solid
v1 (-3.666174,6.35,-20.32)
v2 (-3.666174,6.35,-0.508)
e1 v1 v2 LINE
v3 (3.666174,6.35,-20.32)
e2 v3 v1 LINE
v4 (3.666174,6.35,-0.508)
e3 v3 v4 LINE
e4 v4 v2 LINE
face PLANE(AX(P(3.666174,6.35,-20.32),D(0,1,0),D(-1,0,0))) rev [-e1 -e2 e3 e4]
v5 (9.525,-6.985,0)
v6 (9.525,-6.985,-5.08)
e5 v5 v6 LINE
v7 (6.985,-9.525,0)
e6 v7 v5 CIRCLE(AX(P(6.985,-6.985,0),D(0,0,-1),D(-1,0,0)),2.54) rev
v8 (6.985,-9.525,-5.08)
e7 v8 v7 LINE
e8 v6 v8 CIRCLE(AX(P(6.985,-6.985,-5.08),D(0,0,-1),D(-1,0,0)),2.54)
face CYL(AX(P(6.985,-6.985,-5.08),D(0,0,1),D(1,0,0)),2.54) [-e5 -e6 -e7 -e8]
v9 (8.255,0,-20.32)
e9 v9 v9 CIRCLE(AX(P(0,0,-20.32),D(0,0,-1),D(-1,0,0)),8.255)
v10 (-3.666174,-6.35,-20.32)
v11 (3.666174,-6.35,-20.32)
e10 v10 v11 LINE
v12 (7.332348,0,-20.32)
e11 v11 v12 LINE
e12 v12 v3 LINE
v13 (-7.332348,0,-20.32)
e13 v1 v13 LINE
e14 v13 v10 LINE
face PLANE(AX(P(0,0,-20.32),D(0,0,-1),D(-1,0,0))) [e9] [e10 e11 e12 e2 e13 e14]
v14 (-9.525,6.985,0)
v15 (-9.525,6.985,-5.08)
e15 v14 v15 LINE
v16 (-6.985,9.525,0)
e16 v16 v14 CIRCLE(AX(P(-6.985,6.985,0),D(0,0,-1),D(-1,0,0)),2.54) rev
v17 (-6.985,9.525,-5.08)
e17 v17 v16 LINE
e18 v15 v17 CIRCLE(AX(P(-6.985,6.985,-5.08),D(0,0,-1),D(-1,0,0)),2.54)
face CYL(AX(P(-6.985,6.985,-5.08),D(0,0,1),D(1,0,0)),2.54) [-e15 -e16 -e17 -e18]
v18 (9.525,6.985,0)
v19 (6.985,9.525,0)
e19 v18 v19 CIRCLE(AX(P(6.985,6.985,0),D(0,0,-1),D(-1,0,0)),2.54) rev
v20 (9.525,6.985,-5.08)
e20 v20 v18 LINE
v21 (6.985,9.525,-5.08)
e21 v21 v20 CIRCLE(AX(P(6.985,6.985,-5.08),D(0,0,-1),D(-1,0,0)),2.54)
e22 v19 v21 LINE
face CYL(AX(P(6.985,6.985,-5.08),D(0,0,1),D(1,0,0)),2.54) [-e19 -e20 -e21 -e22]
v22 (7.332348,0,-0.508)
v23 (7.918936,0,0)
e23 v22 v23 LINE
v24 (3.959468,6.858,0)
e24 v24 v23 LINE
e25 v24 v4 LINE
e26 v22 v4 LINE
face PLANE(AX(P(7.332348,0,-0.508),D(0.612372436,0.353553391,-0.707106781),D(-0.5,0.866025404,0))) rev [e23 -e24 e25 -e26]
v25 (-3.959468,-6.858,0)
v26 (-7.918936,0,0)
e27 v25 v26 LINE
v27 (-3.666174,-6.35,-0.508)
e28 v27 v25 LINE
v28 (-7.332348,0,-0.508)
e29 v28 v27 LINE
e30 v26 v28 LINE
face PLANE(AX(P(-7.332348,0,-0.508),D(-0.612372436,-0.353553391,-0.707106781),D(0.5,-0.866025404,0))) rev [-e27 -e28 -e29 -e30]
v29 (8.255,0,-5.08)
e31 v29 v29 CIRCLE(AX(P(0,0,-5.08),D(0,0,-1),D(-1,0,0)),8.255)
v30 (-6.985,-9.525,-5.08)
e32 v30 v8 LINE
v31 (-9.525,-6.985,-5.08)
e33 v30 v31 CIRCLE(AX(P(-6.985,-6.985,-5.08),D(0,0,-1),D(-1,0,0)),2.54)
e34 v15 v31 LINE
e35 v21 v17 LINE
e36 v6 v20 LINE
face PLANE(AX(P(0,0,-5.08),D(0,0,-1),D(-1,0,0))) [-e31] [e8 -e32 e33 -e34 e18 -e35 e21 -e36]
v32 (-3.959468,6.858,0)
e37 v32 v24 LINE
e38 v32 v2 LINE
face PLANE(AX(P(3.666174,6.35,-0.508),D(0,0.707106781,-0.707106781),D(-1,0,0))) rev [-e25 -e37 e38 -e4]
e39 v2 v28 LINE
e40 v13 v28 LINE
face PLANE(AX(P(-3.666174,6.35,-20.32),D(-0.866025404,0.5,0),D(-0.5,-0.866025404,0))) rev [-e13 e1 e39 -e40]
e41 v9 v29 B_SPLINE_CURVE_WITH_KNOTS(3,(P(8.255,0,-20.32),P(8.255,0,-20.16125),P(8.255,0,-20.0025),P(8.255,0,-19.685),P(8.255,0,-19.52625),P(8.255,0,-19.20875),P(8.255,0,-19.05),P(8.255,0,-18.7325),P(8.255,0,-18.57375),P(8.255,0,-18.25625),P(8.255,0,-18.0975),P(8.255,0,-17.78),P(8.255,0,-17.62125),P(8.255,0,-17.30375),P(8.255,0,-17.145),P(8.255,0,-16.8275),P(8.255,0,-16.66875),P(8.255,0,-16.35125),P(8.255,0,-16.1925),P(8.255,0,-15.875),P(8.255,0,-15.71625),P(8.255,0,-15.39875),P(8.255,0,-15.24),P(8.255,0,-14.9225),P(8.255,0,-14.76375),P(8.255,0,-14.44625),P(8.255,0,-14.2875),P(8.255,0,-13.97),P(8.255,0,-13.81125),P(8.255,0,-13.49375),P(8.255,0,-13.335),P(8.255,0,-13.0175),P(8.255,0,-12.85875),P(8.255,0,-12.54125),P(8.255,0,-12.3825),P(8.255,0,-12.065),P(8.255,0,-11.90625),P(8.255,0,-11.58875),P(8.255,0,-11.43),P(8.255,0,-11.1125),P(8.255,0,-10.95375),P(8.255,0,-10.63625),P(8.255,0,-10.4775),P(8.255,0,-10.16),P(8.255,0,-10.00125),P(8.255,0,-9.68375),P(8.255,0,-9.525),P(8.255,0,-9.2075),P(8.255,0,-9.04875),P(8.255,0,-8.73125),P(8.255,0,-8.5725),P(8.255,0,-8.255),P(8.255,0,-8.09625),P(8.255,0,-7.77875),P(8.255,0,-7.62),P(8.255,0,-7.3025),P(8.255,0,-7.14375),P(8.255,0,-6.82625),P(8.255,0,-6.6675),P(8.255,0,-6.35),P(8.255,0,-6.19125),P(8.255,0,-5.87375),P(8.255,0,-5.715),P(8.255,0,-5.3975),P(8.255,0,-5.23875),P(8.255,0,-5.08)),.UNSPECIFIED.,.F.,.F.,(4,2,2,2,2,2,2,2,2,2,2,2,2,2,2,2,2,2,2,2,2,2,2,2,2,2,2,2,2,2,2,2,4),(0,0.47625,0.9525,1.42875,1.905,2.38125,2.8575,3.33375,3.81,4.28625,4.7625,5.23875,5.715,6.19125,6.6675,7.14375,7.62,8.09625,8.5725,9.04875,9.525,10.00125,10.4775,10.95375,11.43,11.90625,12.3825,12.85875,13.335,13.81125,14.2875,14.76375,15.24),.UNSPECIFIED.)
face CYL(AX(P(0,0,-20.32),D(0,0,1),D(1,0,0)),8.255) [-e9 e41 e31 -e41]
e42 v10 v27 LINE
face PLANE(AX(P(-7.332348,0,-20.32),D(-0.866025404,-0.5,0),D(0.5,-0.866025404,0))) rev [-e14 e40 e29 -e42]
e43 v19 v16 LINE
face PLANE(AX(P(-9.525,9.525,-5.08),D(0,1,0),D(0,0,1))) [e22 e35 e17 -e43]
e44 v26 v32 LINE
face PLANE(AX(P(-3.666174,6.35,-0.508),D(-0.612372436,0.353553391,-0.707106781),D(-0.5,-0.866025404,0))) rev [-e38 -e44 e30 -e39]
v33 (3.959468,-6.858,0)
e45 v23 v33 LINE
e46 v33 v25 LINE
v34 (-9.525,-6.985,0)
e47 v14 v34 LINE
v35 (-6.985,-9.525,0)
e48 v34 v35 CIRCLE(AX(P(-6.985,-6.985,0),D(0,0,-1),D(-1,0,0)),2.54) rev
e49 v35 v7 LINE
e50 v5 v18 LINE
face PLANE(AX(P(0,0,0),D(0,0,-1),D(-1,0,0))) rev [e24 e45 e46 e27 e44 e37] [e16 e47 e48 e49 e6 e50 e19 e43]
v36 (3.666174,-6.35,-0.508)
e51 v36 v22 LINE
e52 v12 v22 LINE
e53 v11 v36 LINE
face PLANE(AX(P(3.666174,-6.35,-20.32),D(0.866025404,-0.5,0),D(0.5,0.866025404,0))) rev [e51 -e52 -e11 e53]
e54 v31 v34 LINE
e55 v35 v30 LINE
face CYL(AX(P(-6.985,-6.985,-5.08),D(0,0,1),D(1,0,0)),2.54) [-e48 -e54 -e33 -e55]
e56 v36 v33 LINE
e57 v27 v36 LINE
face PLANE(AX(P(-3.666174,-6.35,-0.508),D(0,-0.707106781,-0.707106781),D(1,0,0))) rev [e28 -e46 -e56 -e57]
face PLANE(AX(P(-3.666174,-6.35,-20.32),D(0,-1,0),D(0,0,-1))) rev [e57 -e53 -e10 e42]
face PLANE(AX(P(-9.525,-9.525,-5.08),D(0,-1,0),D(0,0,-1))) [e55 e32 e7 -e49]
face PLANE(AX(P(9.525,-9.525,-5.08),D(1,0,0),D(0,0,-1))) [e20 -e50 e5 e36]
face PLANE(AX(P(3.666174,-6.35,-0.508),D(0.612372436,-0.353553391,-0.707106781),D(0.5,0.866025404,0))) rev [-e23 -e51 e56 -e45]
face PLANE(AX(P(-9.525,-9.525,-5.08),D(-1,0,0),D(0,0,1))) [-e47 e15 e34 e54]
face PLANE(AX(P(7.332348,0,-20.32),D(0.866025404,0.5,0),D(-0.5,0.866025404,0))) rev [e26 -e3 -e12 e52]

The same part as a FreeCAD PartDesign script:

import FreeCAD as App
import Part
import Sketcher
from FreeCAD import Vector
Q = App.Units.Quantity


def edges_at(feature, points):
    """Names of the edges that pass closest to the given points."""
    edges = feature.Shape.Edges
    near = lambda p: min(range(len(edges)), key=lambda i: edges[i].distToShape(Part.Vertex(*p))[0])
    return sorted({f"Edge{near(p) + 1}" for p in points})

doc = App.newDocument("Part")
body = doc.addObject("PartDesign::Body", "Body")

# Sketch on XY plane
sketch1 = doc.addObject("Sketcher::SketchObject", "Sketch")
body.addObject(sketch1)
sketch1.AttachmentSupport = (doc.XY_Plane, [""])
sketch1.MapMode = "FlatFace"
sketch1.addGeometry([
    Part.LineSegment(Vector(-9.525, 9.525, 0), Vector(-9.525, -9.525, 0)),
    Part.LineSegment(Vector(-9.525, -9.525, 0), Vector(9.525, -9.525, 0)),
    Part.LineSegment(Vector(9.525, -9.525, 0), Vector(9.525, 9.525, 0)),
    Part.LineSegment(Vector(9.525, 9.525, 0), Vector(-9.525, 9.525, 0)),
], False)
sketch1.addConstraint([
    Sketcher.Constraint("Coincident", 0, 2, 1, 1),
    Sketcher.Constraint("Coincident", 1, 2, 2, 1),
    Sketcher.Constraint("Coincident", 2, 2, 3, 1),
    Sketcher.Constraint("Coincident", 3, 2, 0, 1),
    Sketcher.Constraint("Vertical", 0),
    Sketcher.Constraint("Horizontal", 1),
    Sketcher.Constraint("Vertical", 2),
    Sketcher.Constraint("Horizontal", 3),
    Sketcher.Constraint("Symmetric", 0, 2, 2, 2, -1, 1),
    Sketcher.Constraint("Equal", 3, 0),
    Sketcher.Constraint("DistanceX", 1, 1, 1, 2, Q("0.75 in")),
])
pad1 = doc.addObject("PartDesign::Pad", "Pad")
body.addObject(pad1)
pad1.Profile = sketch1
pad1.Length = Q("0.2 in")
pad1.Reversed = True

# Sketch on XY plane
sketch2 = doc.addObject("Sketcher::SketchObject", "Sketch001")
body.addObject(sketch2)
sketch2.AttachmentSupport = (doc.XY_Plane, [""])
sketch2.MapMode = "FlatFace"
sketch2.AttachmentOffset = App.Placement(Vector(0, 0, -0.2 * 25.4), App.Rotation())
sketch2.addGeometry(Part.Circle(Vector(0, 0, 0), Vector(0, 0, 1), 8.255), False)
sketch2.addConstraint([
    Sketcher.Constraint("Coincident", 0, 3, -1, 1),
    Sketcher.Constraint("Diameter", 0, Q("0.65 in")),
])
pad2 = doc.addObject("PartDesign::Pad", "Pad001")
body.addObject(pad2)
pad2.Profile = sketch2
pad2.Length = Q("0.6 in")
pad2.Reversed = True

# Sketch on XY plane
sketch3 = doc.addObject("Sketcher::SketchObject", "Sketch002")
body.addObject(sketch3)
sketch3.AttachmentSupport = (doc.XY_Plane, [""])
sketch3.MapMode = "FlatFace"
sketch3.addGeometry([
    Part.LineSegment(Vector(3.666174, 6.35, 0), Vector(-3.666174, 6.35, 0)),  # 0
    Part.LineSegment(Vector(-3.666174, 6.35, 0), Vector(-7.332348, 0, 0)),  # 1
    Part.LineSegment(Vector(-7.332348, 0, 0), Vector(-3.666174, -6.35, 0)),  # 2
    Part.LineSegment(Vector(-3.666174, -6.35, 0), Vector(3.666174, -6.35, 0)),  # 3
    Part.LineSegment(Vector(3.666174, -6.35, 0), Vector(7.332348, 0, 0)),  # 4
    Part.LineSegment(Vector(7.332348, 0, 0), Vector(3.666174, 6.35, 0)),  # 5
], False)
sketch3.addConstraint([
    Sketcher.Constraint("Coincident", 0, 2, 1, 1),
    Sketcher.Constraint("Coincident", 1, 2, 2, 1),
    Sketcher.Constraint("Coincident", 2, 2, 3, 1),
    Sketcher.Constraint("Coincident", 3, 2, 4, 1),
    Sketcher.Constraint("Coincident", 4, 2, 5, 1),
    Sketcher.Constraint("Coincident", 5, 2, 0, 1),
    Sketcher.Constraint("Horizontal", 0),
    Sketcher.Constraint("Horizontal", 3),
    Sketcher.Constraint("Symmetric", 0, 2, 3, 2, -1, 1),
    Sketcher.Constraint("Symmetric", 1, 2, 4, 2, -1, 1),
    Sketcher.Constraint("PointOnObject", 1, 2, -1),
    Sketcher.Constraint("Parallel", 2, 5),
    Sketcher.Constraint("Vertical", 0, 2, 2, 2),
    Sketcher.Constraint("Angle", 1, Q("-120 deg")),
    Sketcher.Constraint("DistanceY", 2, 2, 0, 2, Q("0.5 in")),
    Sketcher.Constraint("DistanceX", 0, 2, 0, 1, 7.332348),
])
pocket1 = doc.addObject("PartDesign::Pocket", "Pocket")
body.addObject(pocket1)
pocket1.Profile = sketch3
pocket1.Type = "ThroughAll"
doc.recompute()

fillet = doc.addObject("PartDesign::Fillet", "Fillet")
body.addObject(fillet)
fillet.Base = (pocket1, edges_at(pocket1, [
    (9.525, -9.525, -2.54),
    (-9.525, -9.525, -2.54),
    (-9.525, 9.525, -2.54),
    (9.525, 9.525, -2.54),
]))
fillet.Radius = Q("0.1 in")
doc.recompute()

chamfer = doc.addObject("PartDesign::Chamfer", "Chamfer")
body.addObject(chamfer)
chamfer.Base = (fillet, edges_at(fillet, [
    (5.499, 3.175, 0),
    (0, 6.35, 0),
    (-5.499, 3.175, 0),
    (-5.499, -3.175, 0),
    (0, -6.35, 0),
    (5.499, -3.175, 0),
]))
chamfer.Size = Q("0.02 in")

doc.recompute()
